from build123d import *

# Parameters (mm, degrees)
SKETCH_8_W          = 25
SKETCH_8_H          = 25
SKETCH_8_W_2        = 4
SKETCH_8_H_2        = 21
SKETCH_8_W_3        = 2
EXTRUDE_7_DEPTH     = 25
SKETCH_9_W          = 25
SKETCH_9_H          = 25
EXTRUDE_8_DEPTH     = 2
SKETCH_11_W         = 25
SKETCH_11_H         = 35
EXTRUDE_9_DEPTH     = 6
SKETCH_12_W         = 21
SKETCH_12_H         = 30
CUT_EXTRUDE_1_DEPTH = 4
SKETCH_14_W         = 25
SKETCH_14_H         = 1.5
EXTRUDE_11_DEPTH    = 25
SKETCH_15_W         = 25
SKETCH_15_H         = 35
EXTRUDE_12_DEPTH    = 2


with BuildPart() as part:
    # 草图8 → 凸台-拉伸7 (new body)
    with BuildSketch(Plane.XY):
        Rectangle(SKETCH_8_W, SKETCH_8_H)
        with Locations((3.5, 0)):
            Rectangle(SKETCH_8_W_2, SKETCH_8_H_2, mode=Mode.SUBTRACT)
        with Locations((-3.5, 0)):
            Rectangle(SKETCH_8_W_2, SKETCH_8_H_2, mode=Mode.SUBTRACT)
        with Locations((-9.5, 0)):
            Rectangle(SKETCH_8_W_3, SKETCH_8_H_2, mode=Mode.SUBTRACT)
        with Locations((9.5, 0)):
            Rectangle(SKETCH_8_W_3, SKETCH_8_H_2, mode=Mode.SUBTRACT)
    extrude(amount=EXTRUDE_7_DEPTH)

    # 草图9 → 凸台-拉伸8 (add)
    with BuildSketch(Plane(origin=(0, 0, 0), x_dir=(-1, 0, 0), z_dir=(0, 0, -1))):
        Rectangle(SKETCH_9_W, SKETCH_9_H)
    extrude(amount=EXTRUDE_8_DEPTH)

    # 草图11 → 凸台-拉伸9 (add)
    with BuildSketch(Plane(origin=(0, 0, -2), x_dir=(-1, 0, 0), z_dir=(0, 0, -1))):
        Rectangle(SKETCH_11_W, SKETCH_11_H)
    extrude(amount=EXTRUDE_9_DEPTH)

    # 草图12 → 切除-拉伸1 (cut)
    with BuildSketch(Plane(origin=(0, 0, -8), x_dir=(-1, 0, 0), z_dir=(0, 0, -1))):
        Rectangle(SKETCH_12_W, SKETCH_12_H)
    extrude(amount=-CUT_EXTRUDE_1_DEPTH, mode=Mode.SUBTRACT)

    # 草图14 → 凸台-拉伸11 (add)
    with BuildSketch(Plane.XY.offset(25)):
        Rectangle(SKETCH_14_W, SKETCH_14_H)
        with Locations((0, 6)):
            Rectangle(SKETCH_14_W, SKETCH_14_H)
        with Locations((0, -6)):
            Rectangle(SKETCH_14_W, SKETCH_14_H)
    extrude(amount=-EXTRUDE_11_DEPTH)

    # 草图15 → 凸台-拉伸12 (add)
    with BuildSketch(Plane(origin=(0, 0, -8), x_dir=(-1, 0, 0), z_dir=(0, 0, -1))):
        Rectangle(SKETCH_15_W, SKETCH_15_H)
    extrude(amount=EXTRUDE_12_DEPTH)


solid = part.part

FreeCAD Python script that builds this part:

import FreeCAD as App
import Part
import Sketcher


def add_polygon(sketch, points):
    """Adds a closed chain of lines whose ends are joined by coincident constraints."""
    first, n = sketch.GeometryCount, len(points)
    for a, b in zip(points, points[1:] + points[:1]):
        sketch.addGeometry(Part.LineSegment(App.Vector(*a, 0), App.Vector(*b, 0)), False)
    for i in range(n):
        sketch.addConstraint(Sketcher.Constraint("Coincident", first + i, 2, first + (i + 1) % n, 1))

doc = App.newDocument("Part")
params = doc.addObject("Spreadsheet::Sheet", "Params")
for row, (alias, value) in enumerate([
    ("sketch1_width", "25 mm"),
    ("sketch1_width2", "2 mm"),
    ("sketch1_width3", "4 mm"),
    ("sketch1_height", "21 mm"),
    ("pad1_length", "25 mm"),
    ("sketch2_width", "25 mm"),
    ("pad2_length", "2 mm"),
    ("sketch3_width", "25 mm"),
    ("sketch3_height", "35 mm"),
    ("pad3_length", "6 mm"),
    ("sketch4_width", "21 mm"),
    ("sketch4_height", "30 mm"),
    ("pocket1_length", "4 mm"),
    ("sketch5_width", "25 mm"),
    ("sketch5_height", "1.5 mm"),
    ("pad4_length", "25 mm"),
    ("sketch6_width", "25 mm"),
    ("sketch6_height", "35 mm"),
    ("pad5_length", "2 mm"),
], start=1):
    params.set(f"A{row}", alias)
    params.set(f"B{row}", "=" + value)
    params.setAlias(f"B{row}", alias)

body = doc.addObject("PartDesign::Body", "Body")

# Sketch on XY plane
sketch1 = body.newObject("Sketcher::SketchObject", "Sketch")
sketch1.AttachmentSupport = (doc.getObject("XY_Plane"), [""])
sketch1.MapMode = "FlatFace"
add_polygon(sketch1, [(-12.5, 12.5), (-12.5, -12.5), (12.5, -12.5), (12.5, 12.5)])  # lines 0-3
add_polygon(sketch1, [(-8.5, -10.5), (-10.5, -10.5), (-10.5, 10.5), (-8.5, 10.5)])  # lines 4-7
add_polygon(sketch1, [(-1.5, -10.5), (-5.5, -10.5), (-5.5, 10.5), (-1.5, 10.5)])  # lines 8-11
add_polygon(sketch1, [(5.5, -10.5), (1.5, -10.5), (1.5, 10.5), (5.5, 10.5)])  # lines 12-15
add_polygon(sketch1, [(10.5, -10.5), (8.5, -10.5), (8.5, 10.5), (10.5, 10.5)])  # lines 16-19
sketch1.addConstraint([
    Sketcher.Constraint("Vertical", 0),
    Sketcher.Constraint("Horizontal", 1),
    Sketcher.Constraint("Vertical", 2),
    Sketcher.Constraint("Horizontal", 3),
    Sketcher.Constraint("Horizontal", 4),
    Sketcher.Constraint("Vertical", 5),
    Sketcher.Constraint("Horizontal", 6),
    Sketcher.Constraint("Vertical", 7),
    Sketcher.Constraint("Horizontal", 8),
    Sketcher.Constraint("Vertical", 9),
    Sketcher.Constraint("Horizontal", 10),
    Sketcher.Constraint("Vertical", 11),
    Sketcher.Constraint("Horizontal", 12),
    Sketcher.Constraint("Vertical", 13),
    Sketcher.Constraint("Horizontal", 14),
    Sketcher.Constraint("Vertical", 15),
    Sketcher.Constraint("Horizontal", 16),
    Sketcher.Constraint("Vertical", 17),
    Sketcher.Constraint("Horizontal", 18),
    Sketcher.Constraint("Vertical", 19),
    Sketcher.Constraint("Symmetric", 0, 2, 2, 2, -1, 1),
    Sketcher.Constraint("Symmetric", 10, 2, 12, 2, -1, 1),
    Sketcher.Constraint("Symmetric", 8, 2, 14, 2, -1, 1),
    Sketcher.Constraint("Symmetric", 6, 2, 16, 2, -1, 1),
    Sketcher.Constraint("Symmetric", 4, 2, 18, 2, -1, 1),
    Sketcher.Constraint("Horizontal", 7, 2, 8, 2),
    Sketcher.Constraint("Horizontal", 6, 2, 9, 2),
    Sketcher.Constraint("Horizontal", 11, 2, 12, 2),
    Sketcher.Constraint("Equal", 3, 0),
    Sketcher.Constraint("DistanceX", 1, 1, 1, 2, 25.0),
    Sketcher.Constraint("DistanceX", 4, 2, 4, 1, 2.0),
    Sketcher.Constraint("DistanceX", 8, 2, 8, 1, 4.0),
    Sketcher.Constraint("DistanceY", 5, 1, 5, 2, 21.0),
    Sketcher.Constraint("DistanceX", 0, 2, 4, 2, 2.0),
    Sketcher.Constraint("DistanceX", 7, 2, 8, 2, 3.0),
])
sketch1.setExpression("Constraints[49]", "Params.sketch1_width")
sketch1.setExpression("Constraints[50]", "Params.sketch1_width2")
sketch1.setExpression("Constraints[51]", "Params.sketch1_width3")
sketch1.setExpression("Constraints[52]", "Params.sketch1_height")
pad1 = body.newObject("PartDesign::Pad", "Pad")
pad1.Profile = sketch1
pad1.setExpression("Length", "Params.pad1_length")

# Sketch on XY plane
sketch2 = body.newObject("Sketcher::SketchObject", "Sketch001")
sketch2.AttachmentSupport = (doc.getObject("XY_Plane"), [""])
sketch2.MapMode = "FlatFace"
add_polygon(sketch2, [(12, 12), (12, -12), (-12, -12), (-12, 12)])  # lines 0-3
sketch2.addConstraint([
    Sketcher.Constraint("Vertical", 0),
    Sketcher.Constraint("Horizontal", 1),
    Sketcher.Constraint("Vertical", 2),
    Sketcher.Constraint("Horizontal", 3),
    Sketcher.Constraint("Symmetric", 0, 2, 2, 2, -1, 1),
    Sketcher.Constraint("Equal", 3, 0),
    Sketcher.Constraint("DistanceX", 1, 2, 1, 1, 25.0),
])
sketch2.setExpression("Constraints[10]", "Params.sketch2_width")
pad2 = body.newObject("PartDesign::Pad", "Pad001")
pad2.Profile = sketch2
pad2.setExpression("Length", "Params.pad2_length")
pad2.Reversed = True

# Sketch on XY plane
sketch3 = body.newObject("Sketcher::SketchObject", "Sketch002")
sketch3.AttachmentSupport = (doc.getObject("XY_Plane"), [""])
sketch3.MapMode = "FlatFace"
sketch3.AttachmentOffset = App.Placement(App.Vector(0, 0, -2), App.Rotation())
add_polygon(sketch3, [(12, 18), (12, -18), (-12, -18), (-12, 18)])  # lines 0-3
sketch3.addConstraint([
    Sketcher.Constraint("Vertical", 0),
    Sketcher.Constraint("Horizontal", 1),
    Sketcher.Constraint("Vertical", 2),
    Sketcher.Constraint("Horizontal", 3),
    Sketcher.Constraint("Symmetric", 0, 2, 2, 2, -1, 1),
    Sketcher.Constraint("DistanceX", 1, 2, 1, 1, 25.0),
    Sketcher.Constraint("DistanceY", 0, 2, 0, 1, 35.0),
])
sketch3.setExpression("Constraints[9]", "Params.sketch3_width")
sketch3.setExpression("Constraints[10]", "Params.sketch3_height")
pad3 = body.newObject("PartDesign::Pad", "Pad002")
pad3.Profile = sketch3
pad3.setExpression("Length", "Params.pad3_length")
pad3.Reversed = True

# Sketch on XY plane
sketch4 = body.newObject("Sketcher::SketchObject", "Sketch003")
sketch4.AttachmentSupport = (doc.getObject("XY_Plane"), [""])
sketch4.MapMode = "FlatFace"
sketch4.AttachmentOffset = App.Placement(App.Vector(0, 0, -8), App.Rotation())
add_polygon(sketch4, [(10, 15), (10, -15), (-10, -15), (-10, 15)])  # lines 0-3
sketch4.addConstraint([
    Sketcher.Constraint("Vertical", 0),
    Sketcher.Constraint("Horizontal", 1),
    Sketcher.Constraint("Vertical", 2),
    Sketcher.Constraint("Horizontal", 3),
    Sketcher.Constraint("Symmetric", 0, 2, 2, 2, -1, 1),
    Sketcher.Constraint("DistanceX", 1, 2, 1, 1, 21.0),
    Sketcher.Constraint("DistanceY", 0, 2, 0, 1, 30.0),
])
sketch4.setExpression("Constraints[9]", "Params.sketch4_width")
sketch4.setExpression("Constraints[10]", "Params.sketch4_height")
pocket1 = body.newObject("PartDesign::Pocket", "Pocket")
pocket1.Profile = sketch4
pocket1.setExpression("Length", "Params.pocket1_length")
pocket1.Reversed = True

# Sketch on XY plane
sketch5 = body.newObject("Sketcher::SketchObject", "Sketch004")
sketch5.AttachmentSupport = (doc.getObject("XY_Plane"), [""])
sketch5.MapMode = "FlatFace"
sketch5.AttachmentOffset = App.Placement(App.Vector(0, 0, 25), App.Rotation())
add_polygon(sketch5, [(-12.5, 0.8), (-12.5, -0.8), (12.5, -0.8), (12.5, 0.8)])  # lines 0-3
add_polygon(sketch5, [(-12.5, 6.8), (-12.5, 5.2), (12.5, 5.2), (12.5, 6.8)])  # lines 4-7
add_polygon(sketch5, [(-12.5, -5.2), (-12.5, -6.8), (12.5, -6.8), (12.5, -5.2)])  # lines 8-11
sketch5.addConstraint([
    Sketcher.Constraint("Vertical", 0),
    Sketcher.Constraint("Horizontal", 1),
    Sketcher.Constraint("Vertical", 2),
    Sketcher.Constraint("Horizontal", 3),
    Sketcher.Constraint("Vertical", 4),
    Sketcher.Constraint("Horizontal", 5),
    Sketcher.Constraint("Vertical", 6),
    Sketcher.Constraint("Horizontal", 7),
    Sketcher.Constraint("Vertical", 8),
    Sketcher.Constraint("Horizontal", 9),
    Sketcher.Constraint("Vertical", 10),
    Sketcher.Constraint("Horizontal", 11),
    Sketcher.Constraint("Symmetric", 0, 2, 2, 2, -1, 1),
    Sketcher.Constraint("Symmetric", 6, 2, 8, 2, -1, 1),
    Sketcher.Constraint("Symmetric", 4, 2, 10, 2, -1, 1),
    Sketcher.Constraint("Vertical", 3, 2, 4, 2),
    Sketcher.Constraint("Vertical", 2, 2, 5, 2),
    Sketcher.Constraint("Equal", 2, 4),
    Sketcher.Constraint("DistanceX", 1, 1, 1, 2, 25.0),
    Sketcher.Constraint("DistanceY", 0, 2, 0, 1, 1.5),
    Sketcher.Constraint("DistanceY", 0, 2, 4, 2, 6.0),
])
sketch5.setExpression("Constraints[30]", "Params.sketch5_width")
sketch5.setExpression("Constraints[31]", "Params.sketch5_height")
pad4 = body.newObject("PartDesign::Pad", "Pad003")
pad4.Profile = sketch5
pad4.setExpression("Length", "Params.pad4_length")
pad4.Reversed = True

# Sketch on XY plane
sketch6 = body.newObject("Sketcher::SketchObject", "Sketch005")
sketch6.AttachmentSupport = (doc.getObject("XY_Plane"), [""])
sketch6.MapMode = "FlatFace"
sketch6.AttachmentOffset = App.Placement(App.Vector(0, 0, -8), App.Rotation())
add_polygon(sketch6, [(12, 18), (12, -18), (-12, -18), (-12, 18)])  # lines 0-3
sketch6.addConstraint([
    Sketcher.Constraint("Vertical", 0),
    Sketcher.Constraint("Horizontal", 1),
    Sketcher.Constraint("Vertical", 2),
    Sketcher.Constraint("Horizontal", 3),
    Sketcher.Constraint("Symmetric", 0, 2, 2, 2, -1, 1),
    Sketcher.Constraint("DistanceX", 1, 2, 1, 1, 25.0),
    Sketcher.Constraint("DistanceY", 0, 2, 0, 1, 35.0),
])
sketch6.setExpression("Constraints[9]", "Params.sketch6_width")
sketch6.setExpression("Constraints[10]", "Params.sketch6_height")
pad5 = body.newObject("PartDesign::Pad", "Pad004")
pad5.Profile = sketch6
pad5.setExpression("Length", "Params.pad5_length")
pad5.Reversed = True

doc.recompute()
